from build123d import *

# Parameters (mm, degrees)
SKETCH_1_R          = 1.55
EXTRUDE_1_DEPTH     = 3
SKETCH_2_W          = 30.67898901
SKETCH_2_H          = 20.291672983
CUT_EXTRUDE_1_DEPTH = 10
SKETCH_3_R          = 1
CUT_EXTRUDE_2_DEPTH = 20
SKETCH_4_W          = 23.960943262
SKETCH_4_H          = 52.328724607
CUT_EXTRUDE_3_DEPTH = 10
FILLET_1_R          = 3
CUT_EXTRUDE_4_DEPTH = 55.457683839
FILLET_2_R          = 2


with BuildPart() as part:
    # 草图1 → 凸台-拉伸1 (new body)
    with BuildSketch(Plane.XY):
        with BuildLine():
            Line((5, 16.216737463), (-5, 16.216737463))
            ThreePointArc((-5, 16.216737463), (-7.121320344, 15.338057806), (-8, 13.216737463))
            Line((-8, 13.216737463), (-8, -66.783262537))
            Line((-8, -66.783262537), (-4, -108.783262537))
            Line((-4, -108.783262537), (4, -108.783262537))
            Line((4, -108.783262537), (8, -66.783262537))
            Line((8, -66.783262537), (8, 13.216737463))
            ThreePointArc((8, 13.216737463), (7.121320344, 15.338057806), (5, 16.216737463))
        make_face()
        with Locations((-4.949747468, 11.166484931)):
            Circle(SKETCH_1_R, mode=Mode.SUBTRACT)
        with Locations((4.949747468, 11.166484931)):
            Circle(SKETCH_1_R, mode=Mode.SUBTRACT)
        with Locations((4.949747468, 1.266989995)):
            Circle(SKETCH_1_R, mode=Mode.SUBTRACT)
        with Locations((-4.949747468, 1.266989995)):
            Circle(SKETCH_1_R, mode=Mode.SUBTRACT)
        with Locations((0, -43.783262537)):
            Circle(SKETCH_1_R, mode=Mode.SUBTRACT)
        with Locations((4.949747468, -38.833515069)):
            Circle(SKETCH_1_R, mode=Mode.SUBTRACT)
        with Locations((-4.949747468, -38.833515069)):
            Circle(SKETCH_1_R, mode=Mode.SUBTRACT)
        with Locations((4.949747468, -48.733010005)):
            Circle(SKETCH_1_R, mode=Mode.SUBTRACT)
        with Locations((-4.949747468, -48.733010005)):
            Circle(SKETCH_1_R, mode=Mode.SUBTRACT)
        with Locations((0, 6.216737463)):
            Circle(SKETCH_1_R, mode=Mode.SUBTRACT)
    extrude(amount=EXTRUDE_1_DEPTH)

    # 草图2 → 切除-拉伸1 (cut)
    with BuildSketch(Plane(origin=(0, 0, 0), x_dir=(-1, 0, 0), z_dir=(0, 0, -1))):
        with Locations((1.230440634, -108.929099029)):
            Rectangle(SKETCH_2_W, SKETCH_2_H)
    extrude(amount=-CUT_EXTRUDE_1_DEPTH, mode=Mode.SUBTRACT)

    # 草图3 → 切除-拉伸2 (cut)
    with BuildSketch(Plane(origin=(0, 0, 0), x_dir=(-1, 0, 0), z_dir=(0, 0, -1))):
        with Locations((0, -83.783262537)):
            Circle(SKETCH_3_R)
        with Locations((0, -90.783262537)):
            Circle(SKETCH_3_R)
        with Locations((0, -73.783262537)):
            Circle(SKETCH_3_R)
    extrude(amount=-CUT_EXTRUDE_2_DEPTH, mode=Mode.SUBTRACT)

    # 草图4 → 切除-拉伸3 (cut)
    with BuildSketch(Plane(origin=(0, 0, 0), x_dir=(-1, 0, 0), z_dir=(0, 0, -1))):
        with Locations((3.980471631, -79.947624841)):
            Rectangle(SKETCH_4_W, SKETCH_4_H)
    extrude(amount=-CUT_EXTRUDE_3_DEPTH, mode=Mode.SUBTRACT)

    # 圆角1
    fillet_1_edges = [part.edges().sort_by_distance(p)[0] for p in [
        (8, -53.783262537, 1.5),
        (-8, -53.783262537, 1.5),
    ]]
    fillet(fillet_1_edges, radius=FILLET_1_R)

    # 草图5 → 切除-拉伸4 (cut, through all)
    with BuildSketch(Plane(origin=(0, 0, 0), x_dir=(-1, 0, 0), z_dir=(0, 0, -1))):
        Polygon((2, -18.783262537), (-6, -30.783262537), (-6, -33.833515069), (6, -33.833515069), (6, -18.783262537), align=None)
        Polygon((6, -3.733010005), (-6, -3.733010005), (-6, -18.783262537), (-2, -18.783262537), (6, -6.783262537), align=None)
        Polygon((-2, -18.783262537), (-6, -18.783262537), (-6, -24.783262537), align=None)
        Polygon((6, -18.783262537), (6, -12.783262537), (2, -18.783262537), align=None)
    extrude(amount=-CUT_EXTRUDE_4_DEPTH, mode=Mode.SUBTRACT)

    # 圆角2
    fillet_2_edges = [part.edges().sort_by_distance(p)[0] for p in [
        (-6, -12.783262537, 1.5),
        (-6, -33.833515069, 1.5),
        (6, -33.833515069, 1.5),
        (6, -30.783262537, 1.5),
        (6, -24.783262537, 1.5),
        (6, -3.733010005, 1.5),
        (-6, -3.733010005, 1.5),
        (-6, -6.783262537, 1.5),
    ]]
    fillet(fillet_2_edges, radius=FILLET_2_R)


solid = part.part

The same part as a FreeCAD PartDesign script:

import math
import FreeCAD as App
import Part
import Sketcher

V = App.Vector
Q = App.Units.Quantity


def edges_at(feature, points):
    """Names of the edges that pass closest to the given points."""
    edges = feature.Shape.Edges
    near = lambda p: min(range(len(edges)), key=lambda i: edges[i].distToShape(Part.Vertex(*p))[0])
    return sorted({f"Edge{near(p) + 1}" for p in points})

doc = App.newDocument("Part")
body = doc.addObject("PartDesign::Body", "Body")

sketch1 = body.newObject("Sketcher::SketchObject", "Sketch")
sketch1.AttachmentSupport = (doc.getObject("XY_Plane"), [""])
sketch1.MapMode = "FlatFace"
sketch1.addGeometry(Part.LineSegment(V(5, 16.216737, 0), V(-5, 16.216737, 0)), False)
sketch1.addGeometry(Part.ArcOfCircle(Part.Circle(V(-5, 13.216737, 0), V(0, 0, 1), 3), math.radians(90), math.radians(180)), False)
sketch1.addGeometry(Part.LineSegment(V(-8, 13.216737, 0), V(-8, -66.783263, 0)), False)
sketch1.addGeometry(Part.LineSegment(V(-8, -66.783263, 0), V(-4, -108.783263, 0)), False)
sketch1.addGeometry(Part.LineSegment(V(-4, -108.783263, 0), V(4, -108.783263, 0)), False)
sketch1.addGeometry(Part.LineSegment(V(4, -108.783263, 0), V(8, -66.783263, 0)), False)
sketch1.addGeometry(Part.LineSegment(V(8, -66.783263, 0), V(8, 13.216737, 0)), False)
sketch1.addGeometry(Part.ArcOfCircle(Part.Circle(V(5, 13.216737, 0), V(0, 0, 1), 3), math.radians(0), math.radians(90)), False)
sketch1.addGeometry(Part.Circle(V(-4.949747, -48.73301, 0), V(0, 0, 1), 1.55), False)
sketch1.addGeometry(Part.Circle(V(-4.949747, -38.833515, 0), V(0, 0, 1), 1.55), False)
sketch1.addGeometry(Part.Circle(V(0, -43.783263, 0), V(0, 0, 1), 1.55), False)
sketch1.addGeometry(Part.Circle(V(4.949747, -48.73301, 0), V(0, 0, 1), 1.55), False)
sketch1.addGeometry(Part.Circle(V(4.949747, -38.833515, 0), V(0, 0, 1), 1.55), False)
sketch1.addGeometry(Part.Circle(V(-4.949747, 1.26699, 0), V(0, 0, 1), 1.55), False)
sketch1.addGeometry(Part.Circle(V(-4.949747, 11.166485, 0), V(0, 0, 1), 1.55), False)
sketch1.addGeometry(Part.Circle(V(0, 6.216737, 0), V(0, 0, 1), 1.55), False)
sketch1.addGeometry(Part.Circle(V(4.949747, 1.26699, 0), V(0, 0, 1), 1.55), False)
sketch1.addGeometry(Part.Circle(V(4.949747, 11.166485, 0), V(0, 0, 1), 1.55), False)
sketch1.addConstraint(Sketcher.Constraint("Tangent", 0, 2, 1, 1))
sketch1.addConstraint(Sketcher.Constraint("Tangent", 1, 2, 2, 1))
sketch1.addConstraint(Sketcher.Constraint("Coincident", 2, 2, 3, 1))
sketch1.addConstraint(Sketcher.Constraint("Coincident", 3, 2, 4, 1))
sketch1.addConstraint(Sketcher.Constraint("Coincident", 4, 2, 5, 1))
sketch1.addConstraint(Sketcher.Constraint("Coincident", 5, 2, 6, 1))
sketch1.addConstraint(Sketcher.Constraint("Tangent", 6, 2, 7, 1))
sketch1.addConstraint(Sketcher.Constraint("Tangent", 7, 2, 0, 1))
sketch1.addConstraint(Sketcher.Constraint("Horizontal", 0))
sketch1.addConstraint(Sketcher.Constraint("Vertical", 2))
sketch1.addConstraint(Sketcher.Constraint("Horizontal", 4))
sketch1.addConstraint(Sketcher.Constraint("Vertical", 6))
sketch1.addConstraint(Sketcher.Constraint("Equal", 1, 7))
sketch1.addConstraint(Sketcher.Constraint("Equal", 8, 9))
sketch1.addConstraint(Sketcher.Constraint("Equal", 9, 10))
sketch1.addConstraint(Sketcher.Constraint("Equal", 10, 11))
sketch1.addConstraint(Sketcher.Constraint("Equal", 11, 12))
sketch1.addConstraint(Sketcher.Constraint("Equal", 12, 13))
sketch1.addConstraint(Sketcher.Constraint("Equal", 13, 14))
sketch1.addConstraint(Sketcher.Constraint("Equal", 14, 15))
sketch1.addConstraint(Sketcher.Constraint("Equal", 15, 16))
sketch1.addConstraint(Sketcher.Constraint("Equal", 16, 17))
sketch1.addConstraint(Sketcher.Constraint("Symmetric", 8, 3, 11, 3, -2))
sketch1.addConstraint(Sketcher.Constraint("Symmetric", 9, 3, 12, 3, -2))
sketch1.addConstraint(Sketcher.Constraint("Symmetric", 13, 3, 16, 3, -2))
sketch1.addConstraint(Sketcher.Constraint("Symmetric", 14, 3, 17, 3, -2))
sketch1.addConstraint(Sketcher.Constraint("Symmetric", 2, 2, 5, 2, -2))
sketch1.addConstraint(Sketcher.Constraint("PointOnObject", 10, 3, -2))
sketch1.addConstraint(Sketcher.Constraint("PointOnObject", 15, 3, -2))
sketch1.addConstraint(Sketcher.Constraint("Vertical", 8, 3, 9, 3))
sketch1.addConstraint(Sketcher.Constraint("Vertical", 9, 3, 13, 3))
sketch1.addConstraint(Sketcher.Constraint("Vertical", 13, 3, 14, 3))
sketch1.addConstraint(Sketcher.Constraint("Equal", 3, 5))
sketch1.addConstraint(Sketcher.Constraint("Radius", 1, Q("3 mm")))
sketch1.addConstraint(Sketcher.Constraint("Diameter", 8, Q("3.1 mm")))
sketch1.addConstraint(Sketcher.Constraint("DistanceX", 0, 2, 0, 1, Q("10 mm")))
sketch1.addConstraint(Sketcher.Constraint("DistanceX", 4, 1, 4, 2, Q("8 mm")))
sketch1.addConstraint(Sketcher.Constraint("DistanceY", 2, 2, 2, 1, Q("80 mm")))
sketch1.addConstraint(Sketcher.Constraint("DistanceY", 10, 3, 1, 3, Q("57 mm")))
sketch1.addConstraint(Sketcher.Constraint("DistanceY", 9, 3, 14, 3, Q("50 mm")))
sketch1.addConstraint(Sketcher.Constraint("DistanceY", 15, 3, 1, 3, Q("7 mm")))
sketch1.addConstraint(Sketcher.Constraint("DistanceY", 3, 2, 2, 2, Q("42 mm")))
sketch1.addConstraint(Sketcher.Constraint("DistanceY", 8, 3, -1, 1, Q("48.73301 mm")))
sketch1.addConstraint(Sketcher.Constraint("DistanceY", -1, 1, 13, 3, Q("1.26699 mm")))
sketch1.addConstraint(Sketcher.Constraint("DistanceY", -1, 1, 1, 3, Q("13.216737 mm")))
sketch1.addConstraint(Sketcher.Constraint("DistanceX", 8, 3, -1, 1, Q("4.949747 mm")))
sketch1.addConstraint(Sketcher.Constraint("DistanceY", 9, 3, -1, 1, Q("38.833515 mm")))
pad1 = body.newObject("PartDesign::Pad", "Pad")
pad1.Profile = sketch1
pad1.Length = 3

sketch2 = body.newObject("Sketcher::SketchObject", "Sketch001")
sketch2.AttachmentSupport = (doc.getObject("XY_Plane"), [""])
sketch2.MapMode = "FlatFace"
sketch2.addGeometry(Part.LineSegment(V(14.109054, -98.783263, 0), V(14.109054, -119.074936, 0)), False)
sketch2.addGeometry(Part.LineSegment(V(14.109054, -119.074936, 0), V(-16.569935, -119.074936, 0)), False)
sketch2.addGeometry(Part.LineSegment(V(-16.569935, -119.074936, 0), V(-16.569935, -98.783263, 0)), False)
sketch2.addGeometry(Part.LineSegment(V(-16.569935, -98.783263, 0), V(14.109054, -98.783263, 0)), False)
sketch2.addConstraint(Sketcher.Constraint("Coincident", 0, 2, 1, 1))
sketch2.addConstraint(Sketcher.Constraint("Coincident", 1, 2, 2, 1))
sketch2.addConstraint(Sketcher.Constraint("Coincident", 2, 2, 3, 1))
sketch2.addConstraint(Sketcher.Constraint("Coincident", 3, 2, 0, 1))
sketch2.addConstraint(Sketcher.Constraint("Vertical", 0))
sketch2.addConstraint(Sketcher.Constraint("Horizontal", 1))
sketch2.addConstraint(Sketcher.Constraint("Vertical", 2))
sketch2.addConstraint(Sketcher.Constraint("Horizontal", 3))
sketch2.addConstraint(Sketcher.Constraint("DistanceX", 1, 2, 1, 1, Q("30.678989 mm")))
sketch2.addConstraint(Sketcher.Constraint("DistanceY", 0, 2, 0, 1, Q("20.291673 mm")))
sketch2.addConstraint(Sketcher.Constraint("DistanceX", -1, 1, 0, 2, Q("14.109054 mm")))
sketch2.addConstraint(Sketcher.Constraint("DistanceY", 0, 2, -1, 1, Q("119.074936 mm")))
pocket1 = body.newObject("PartDesign::Pocket", "Pocket")
pocket1.Profile = sketch2
pocket1.Length = 10
pocket1.Reversed = True

sketch3 = body.newObject("Sketcher::SketchObject", "Sketch002")
sketch3.AttachmentSupport = (doc.getObject("XY_Plane"), [""])
sketch3.MapMode = "FlatFace"
sketch3.addGeometry(Part.Circle(V(0, -83.783263, 0), V(0, 0, 1), 1), False)
sketch3.addGeometry(Part.Circle(V(0, -90.783263, 0), V(0, 0, 1), 1), False)
sketch3.addGeometry(Part.Circle(V(0, -73.783263, 0), V(0, 0, 1), 1), False)
sketch3.addConstraint(Sketcher.Constraint("Equal", 0, 1))
sketch3.addConstraint(Sketcher.Constraint("Equal", 1, 2))
sketch3.addConstraint(Sketcher.Constraint("PointOnObject", 0, 3, -2))
sketch3.addConstraint(Sketcher.Constraint("PointOnObject", 1, 3, -2))
sketch3.addConstraint(Sketcher.Constraint("PointOnObject", 2, 3, -2))
sketch3.addConstraint(Sketcher.Constraint("Diameter", 0, Q("2 mm")))
sketch3.addConstraint(Sketcher.Constraint("DistanceY", 1, 3, 0, 3, Q("7 mm")))
sketch3.addConstraint(Sketcher.Constraint("DistanceY", 0, 3, 2, 3, Q("10 mm")))
sketch3.addConstraint(Sketcher.Constraint("DistanceY", 0, 3, -1, 1, Q("83.783263 mm")))
pocket2 = body.newObject("PartDesign::Pocket", "Pocket001")
pocket2.Profile = sketch3
pocket2.Length = 20
pocket2.Reversed = True

sketch4 = body.newObject("Sketcher::SketchObject", "Sketch003")
sketch4.AttachmentSupport = (doc.getObject("XY_Plane"), [""])
sketch4.MapMode = "FlatFace"
sketch4.addGeometry(Part.LineSegment(V(8, -53.783263, 0), V(8, -106.111987, 0)), False)
sketch4.addGeometry(Part.LineSegment(V(8, -106.111987, 0), V(-15.960943, -106.111987, 0)), False)
sketch4.addGeometry(Part.LineSegment(V(-15.960943, -106.111987, 0), V(-15.960943, -53.783263, 0)), False)
sketch4.addGeometry(Part.LineSegment(V(-15.960943, -53.783263, 0), V(8, -53.783263, 0)), False)
sketch4.addConstraint(Sketcher.Constraint("Coincident", 0, 2, 1, 1))
sketch4.addConstraint(Sketcher.Constraint("Coincident", 1, 2, 2, 1))
sketch4.addConstraint(Sketcher.Constraint("Coincident", 2, 2, 3, 1))
sketch4.addConstraint(Sketcher.Constraint("Coincident", 3, 2, 0, 1))
sketch4.addConstraint(Sketcher.Constraint("Vertical", 0))
sketch4.addConstraint(Sketcher.Constraint("Horizontal", 1))
sketch4.addConstraint(Sketcher.Constraint("Vertical", 2))
sketch4.addConstraint(Sketcher.Constraint("Horizontal", 3))
sketch4.addConstraint(Sketcher.Constraint("DistanceX", -1, 1, 0, 2, Q("8 mm")))
sketch4.addConstraint(Sketcher.Constraint("DistanceX", 1, 2, 1, 1, Q("23.960943 mm")))
sketch4.addConstraint(Sketcher.Constraint("DistanceY", 0, 2, 0, 1, Q("52.328725 mm")))
sketch4.addConstraint(Sketcher.Constraint("DistanceY", 0, 2, -1, 1, Q("106.111987 mm")))
pocket3 = body.newObject("PartDesign::Pocket", "Pocket002")
pocket3.Profile = sketch4
pocket3.Length = 10
pocket3.Reversed = True
doc.recompute()

fillet = body.newObject("PartDesign::Fillet", "Fillet")
fillet.Base = (pocket3, edges_at(pocket3, [(8, -53.783, 1.5), (-8, -53.783, 1.5)]))
fillet.Radius = 3

sketch5 = body.newObject("Sketcher::SketchObject", "Sketch004")
sketch5.AttachmentSupport = (doc.getObject("XY_Plane"), [""])
sketch5.MapMode = "FlatFace"
sketch5.addGeometry(Part.LineSegment(V(6, -30.783263, 0), V(6, -33.833515, 0)), False)
sketch5.addGeometry(Part.LineSegment(V(6, -33.833515, 0), V(-6, -33.833515, 0)), False)
sketch5.addGeometry(Part.LineSegment(V(-6, -33.833515, 0), V(-6, -12.783263, 0)), False)
sketch5.addGeometry(Part.LineSegment(V(-6, -12.783263, 0), V(6, -30.783263, 0)), False)
sketch5.addGeometry(Part.LineSegment(V(-6, -3.73301, 0), V(6, -3.73301, 0)), False)
sketch5.addGeometry(Part.LineSegment(V(6, -3.73301, 0), V(6, -24.783263, 0)), False)
sketch5.addGeometry(Part.LineSegment(V(6, -24.783263, 0), V(-6, -6.783263, 0)), False)
sketch5.addGeometry(Part.LineSegment(V(-6, -6.783263, 0), V(-6, -3.73301, 0)), False)
sketch5.addConstraint(Sketcher.Constraint("Coincident", 0, 2, 1, 1))
sketch5.addConstraint(Sketcher.Constraint("Coincident", 1, 2, 2, 1))
sketch5.addConstraint(Sketcher.Constraint("Coincident", 2, 2, 3, 1))
sketch5.addConstraint(Sketcher.Constraint("Coincident", 3, 2, 0, 1))
sketch5.addConstraint(Sketcher.Constraint("Coincident", 4, 2, 5, 1))
sketch5.addConstraint(Sketcher.Constraint("Coincident", 5, 2, 6, 1))
sketch5.addConstraint(Sketcher.Constraint("Coincident", 6, 2, 7, 1))
sketch5.addConstraint(Sketcher.Constraint("Coincident", 7, 2, 4, 1))
sketch5.addConstraint(Sketcher.Constraint("Vertical", 0))
sketch5.addConstraint(Sketcher.Constraint("Horizontal", 1))
sketch5.addConstraint(Sketcher.Constraint("Vertical", 2))
sketch5.addConstraint(Sketcher.Constraint("Horizontal", 4))
sketch5.addConstraint(Sketcher.Constraint("Vertical", 5))
sketch5.addConstraint(Sketcher.Constraint("Vertical", 7))
sketch5.addConstraint(Sketcher.Constraint("Parallel", 3, 6))
sketch5.addConstraint(Sketcher.Constraint("Vertical", 3, 2, 4, 2))
sketch5.addConstraint(Sketcher.Constraint("Vertical", 2, 2, 6, 2))
sketch5.addConstraint(Sketcher.Constraint("Equal", 2, 5))
sketch5.addConstraint(Sketcher.Constraint("DistanceX", 1, 2, 1, 1, Q("12 mm")))
sketch5.addConstraint(Sketcher.Constraint("DistanceX", -1, 1, 0, 2, Q("6 mm")))
sketch5.addConstraint(Sketcher.Constraint("DistanceY", 3, 2, 2, 2, Q("18 mm")))
sketch5.addConstraint(Sketcher.Constraint("DistanceY", 3, 2, 5, 2, Q("6 mm")))
sketch5.addConstraint(Sketcher.Constraint("DistanceY", 0, 2, 0, 1, Q("3.050253 mm")))
sketch5.addConstraint(Sketcher.Constraint("DistanceY", 4, 2, -1, 1, Q("3.73301 mm")))
pocket4 = body.newObject("PartDesign::Pocket", "Pocket003")
pocket4.Profile = sketch5
pocket4.Type = "ThroughAll"
pocket4.Reversed = True
doc.recompute()

fillet2 = body.newObject("PartDesign::Fillet", "Fillet001")
fillet2.Base = (pocket4, edges_at(pocket4, [
    (-6, -12.783, 1.5),
    (-6, -33.834, 1.5),
    (6, -33.834, 1.5),
    (6, -30.783, 1.5),
    (6, -24.783, 1.5),
    (6, -3.733, 1.5),
    (-6, -3.733, 1.5),
    (-6, -6.783, 1.5),
]))
fillet2.Radius = 2

doc.recompute()
